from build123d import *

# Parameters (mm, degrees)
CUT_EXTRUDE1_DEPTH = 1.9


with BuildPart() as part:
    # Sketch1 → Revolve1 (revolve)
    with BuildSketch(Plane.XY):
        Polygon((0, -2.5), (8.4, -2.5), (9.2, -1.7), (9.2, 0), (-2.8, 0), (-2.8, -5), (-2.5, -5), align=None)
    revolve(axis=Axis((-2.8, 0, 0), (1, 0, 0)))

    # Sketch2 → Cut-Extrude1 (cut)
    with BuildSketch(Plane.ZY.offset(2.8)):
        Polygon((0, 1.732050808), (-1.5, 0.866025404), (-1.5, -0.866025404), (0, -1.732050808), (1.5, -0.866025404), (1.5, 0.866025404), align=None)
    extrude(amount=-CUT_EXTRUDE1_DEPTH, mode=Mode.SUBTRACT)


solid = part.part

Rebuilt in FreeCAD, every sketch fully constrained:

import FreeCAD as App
import Part
import Sketcher
from FreeCAD import Vector
Q = App.Units.Quantity


def add_polygon(sketch, points):
    """Adds a closed chain of lines whose ends are joined by coincident constraints."""
    first, n = sketch.GeometryCount, len(points)
    for a, b in zip(points, points[1:] + points[:1]):
        sketch.addGeometry(Part.LineSegment(App.Vector(*a, 0), App.Vector(*b, 0)), False)
    for i in range(n):
        sketch.addConstraint(Sketcher.Constraint("Coincident", first + i, 2, first + (i + 1) % n, 1))

doc = App.newDocument("Part")
params = doc.addObject("Spreadsheet::Sheet", "Params")
for row, (alias, value) in enumerate([
    ("sketch1_width", "12 mm"),
    ("sketch1_height", "5 mm"),
    ("sketch1_width2", "8.4 mm"),
    ("sketch1_width3", "0.3 mm"),
    ("revolution_angle", "360 deg"),
    ("pocket1_length", "1.9 mm"),
], start=1):
    params.set(f"A{row}", alias)
    params.set(f"B{row}", "=" + value)
    params.setAlias(f"B{row}", alias)

body = doc.addObject("PartDesign::Body", "Body")

# Sketch on XY plane
sketch1 = body.newObject("Sketcher::SketchObject", "Sketch")
sketch1.AttachmentSupport = (doc.getObject("XY_Plane"), [""])
sketch1.MapMode = "FlatFace"
add_polygon(sketch1, [(0, -2.5), (8.4, -2.5), (9.2, -1.7), (9.2, 0), (-2.8, 0), (-2.8, -5), (-2.5, -5)])  # lines 0-6
sketch1.addConstraint([
    Sketcher.Constraint("Horizontal", 0),
    Sketcher.Constraint("Vertical", 2),
    Sketcher.Constraint("Horizontal", 3),
    Sketcher.Constraint("Vertical", 4),
    Sketcher.Constraint("Horizontal", 5),
    Sketcher.Constraint("PointOnObject", 2, 2, -1),
    Sketcher.Constraint("PointOnObject", 6, 2, -2),
    Sketcher.Constraint("Parallel", 1, 6),
    Sketcher.Constraint("DistanceX", 3, 2, 3, 1, Q("12 mm")),
    Sketcher.Constraint("DistanceY", 4, 2, 4, 1, Q("5 mm")),
    Sketcher.Constraint("Angle", 1, Q("45 deg")),
    Sketcher.Constraint("DistanceX", 0, 1, 0, 2, Q("8.4 mm")),
    Sketcher.Constraint("DistanceX", 5, 1, 5, 2, Q("0.3 mm")),
    Sketcher.Constraint("DistanceY", 0, 2, -1, 1, Q("2.5 mm")),
])
sketch1.setExpression("Constraints[15]", "Params.sketch1_width")
sketch1.setExpression("Constraints[16]", "Params.sketch1_height")
sketch1.setExpression("Constraints[18]", "Params.sketch1_width2")
sketch1.setExpression("Constraints[19]", "Params.sketch1_width3")
revolution = body.newObject("PartDesign::Revolution", "Revolution")
revolution.Profile = sketch1
revolution.ReferenceAxis = (sketch1, ["H_Axis"])
revolution.setExpression("Angle", "Params.revolution_angle")

# Sketch on YZ plane
sketch2 = body.newObject("Sketcher::SketchObject", "Sketch001")
sketch2.AttachmentSupport = (doc.getObject("YZ_Plane"), [""])
sketch2.MapMode = "FlatFace"
sketch2.AttachmentOffset = App.Placement(Vector(0, 0, -2.8), App.Rotation())
add_polygon(sketch2, [(1.7, 0), (0.9, -1.5), (-0.9, -1.5), (-1.7, 0), (-0.9, 1.5), (0.9, 1.5)])  # lines 0-5
sketch2.addConstraint([
    Sketcher.Constraint("Horizontal", 1),
    Sketcher.Constraint("Horizontal", 4),
    Sketcher.Constraint("Symmetric", 0, 2, 3, 2, -1, 1),
    Sketcher.Constraint("Symmetric", 2, 2, 5, 2, -1, 1),
    Sketcher.Constraint("PointOnObject", 2, 2, -1),
    Sketcher.Constraint("Parallel", 2, 5),
    Sketcher.Constraint("Vertical", 1, 2, 3, 2),
    Sketcher.Constraint("Angle", 0, Q("-120 deg")),
    Sketcher.Constraint("DistanceY", 1, 2, 3, 2, Q("3 mm")),
    Sketcher.Constraint("DistanceX", 1, 2, 1, 1, Q("1.732051 mm")),
])
pocket1 = body.newObject("PartDesign::Pocket", "Pocket")
pocket1.Profile = sketch2
pocket1.setExpression("Length", "Params.pocket1_length")
pocket1.Reversed = True

doc.recompute()
